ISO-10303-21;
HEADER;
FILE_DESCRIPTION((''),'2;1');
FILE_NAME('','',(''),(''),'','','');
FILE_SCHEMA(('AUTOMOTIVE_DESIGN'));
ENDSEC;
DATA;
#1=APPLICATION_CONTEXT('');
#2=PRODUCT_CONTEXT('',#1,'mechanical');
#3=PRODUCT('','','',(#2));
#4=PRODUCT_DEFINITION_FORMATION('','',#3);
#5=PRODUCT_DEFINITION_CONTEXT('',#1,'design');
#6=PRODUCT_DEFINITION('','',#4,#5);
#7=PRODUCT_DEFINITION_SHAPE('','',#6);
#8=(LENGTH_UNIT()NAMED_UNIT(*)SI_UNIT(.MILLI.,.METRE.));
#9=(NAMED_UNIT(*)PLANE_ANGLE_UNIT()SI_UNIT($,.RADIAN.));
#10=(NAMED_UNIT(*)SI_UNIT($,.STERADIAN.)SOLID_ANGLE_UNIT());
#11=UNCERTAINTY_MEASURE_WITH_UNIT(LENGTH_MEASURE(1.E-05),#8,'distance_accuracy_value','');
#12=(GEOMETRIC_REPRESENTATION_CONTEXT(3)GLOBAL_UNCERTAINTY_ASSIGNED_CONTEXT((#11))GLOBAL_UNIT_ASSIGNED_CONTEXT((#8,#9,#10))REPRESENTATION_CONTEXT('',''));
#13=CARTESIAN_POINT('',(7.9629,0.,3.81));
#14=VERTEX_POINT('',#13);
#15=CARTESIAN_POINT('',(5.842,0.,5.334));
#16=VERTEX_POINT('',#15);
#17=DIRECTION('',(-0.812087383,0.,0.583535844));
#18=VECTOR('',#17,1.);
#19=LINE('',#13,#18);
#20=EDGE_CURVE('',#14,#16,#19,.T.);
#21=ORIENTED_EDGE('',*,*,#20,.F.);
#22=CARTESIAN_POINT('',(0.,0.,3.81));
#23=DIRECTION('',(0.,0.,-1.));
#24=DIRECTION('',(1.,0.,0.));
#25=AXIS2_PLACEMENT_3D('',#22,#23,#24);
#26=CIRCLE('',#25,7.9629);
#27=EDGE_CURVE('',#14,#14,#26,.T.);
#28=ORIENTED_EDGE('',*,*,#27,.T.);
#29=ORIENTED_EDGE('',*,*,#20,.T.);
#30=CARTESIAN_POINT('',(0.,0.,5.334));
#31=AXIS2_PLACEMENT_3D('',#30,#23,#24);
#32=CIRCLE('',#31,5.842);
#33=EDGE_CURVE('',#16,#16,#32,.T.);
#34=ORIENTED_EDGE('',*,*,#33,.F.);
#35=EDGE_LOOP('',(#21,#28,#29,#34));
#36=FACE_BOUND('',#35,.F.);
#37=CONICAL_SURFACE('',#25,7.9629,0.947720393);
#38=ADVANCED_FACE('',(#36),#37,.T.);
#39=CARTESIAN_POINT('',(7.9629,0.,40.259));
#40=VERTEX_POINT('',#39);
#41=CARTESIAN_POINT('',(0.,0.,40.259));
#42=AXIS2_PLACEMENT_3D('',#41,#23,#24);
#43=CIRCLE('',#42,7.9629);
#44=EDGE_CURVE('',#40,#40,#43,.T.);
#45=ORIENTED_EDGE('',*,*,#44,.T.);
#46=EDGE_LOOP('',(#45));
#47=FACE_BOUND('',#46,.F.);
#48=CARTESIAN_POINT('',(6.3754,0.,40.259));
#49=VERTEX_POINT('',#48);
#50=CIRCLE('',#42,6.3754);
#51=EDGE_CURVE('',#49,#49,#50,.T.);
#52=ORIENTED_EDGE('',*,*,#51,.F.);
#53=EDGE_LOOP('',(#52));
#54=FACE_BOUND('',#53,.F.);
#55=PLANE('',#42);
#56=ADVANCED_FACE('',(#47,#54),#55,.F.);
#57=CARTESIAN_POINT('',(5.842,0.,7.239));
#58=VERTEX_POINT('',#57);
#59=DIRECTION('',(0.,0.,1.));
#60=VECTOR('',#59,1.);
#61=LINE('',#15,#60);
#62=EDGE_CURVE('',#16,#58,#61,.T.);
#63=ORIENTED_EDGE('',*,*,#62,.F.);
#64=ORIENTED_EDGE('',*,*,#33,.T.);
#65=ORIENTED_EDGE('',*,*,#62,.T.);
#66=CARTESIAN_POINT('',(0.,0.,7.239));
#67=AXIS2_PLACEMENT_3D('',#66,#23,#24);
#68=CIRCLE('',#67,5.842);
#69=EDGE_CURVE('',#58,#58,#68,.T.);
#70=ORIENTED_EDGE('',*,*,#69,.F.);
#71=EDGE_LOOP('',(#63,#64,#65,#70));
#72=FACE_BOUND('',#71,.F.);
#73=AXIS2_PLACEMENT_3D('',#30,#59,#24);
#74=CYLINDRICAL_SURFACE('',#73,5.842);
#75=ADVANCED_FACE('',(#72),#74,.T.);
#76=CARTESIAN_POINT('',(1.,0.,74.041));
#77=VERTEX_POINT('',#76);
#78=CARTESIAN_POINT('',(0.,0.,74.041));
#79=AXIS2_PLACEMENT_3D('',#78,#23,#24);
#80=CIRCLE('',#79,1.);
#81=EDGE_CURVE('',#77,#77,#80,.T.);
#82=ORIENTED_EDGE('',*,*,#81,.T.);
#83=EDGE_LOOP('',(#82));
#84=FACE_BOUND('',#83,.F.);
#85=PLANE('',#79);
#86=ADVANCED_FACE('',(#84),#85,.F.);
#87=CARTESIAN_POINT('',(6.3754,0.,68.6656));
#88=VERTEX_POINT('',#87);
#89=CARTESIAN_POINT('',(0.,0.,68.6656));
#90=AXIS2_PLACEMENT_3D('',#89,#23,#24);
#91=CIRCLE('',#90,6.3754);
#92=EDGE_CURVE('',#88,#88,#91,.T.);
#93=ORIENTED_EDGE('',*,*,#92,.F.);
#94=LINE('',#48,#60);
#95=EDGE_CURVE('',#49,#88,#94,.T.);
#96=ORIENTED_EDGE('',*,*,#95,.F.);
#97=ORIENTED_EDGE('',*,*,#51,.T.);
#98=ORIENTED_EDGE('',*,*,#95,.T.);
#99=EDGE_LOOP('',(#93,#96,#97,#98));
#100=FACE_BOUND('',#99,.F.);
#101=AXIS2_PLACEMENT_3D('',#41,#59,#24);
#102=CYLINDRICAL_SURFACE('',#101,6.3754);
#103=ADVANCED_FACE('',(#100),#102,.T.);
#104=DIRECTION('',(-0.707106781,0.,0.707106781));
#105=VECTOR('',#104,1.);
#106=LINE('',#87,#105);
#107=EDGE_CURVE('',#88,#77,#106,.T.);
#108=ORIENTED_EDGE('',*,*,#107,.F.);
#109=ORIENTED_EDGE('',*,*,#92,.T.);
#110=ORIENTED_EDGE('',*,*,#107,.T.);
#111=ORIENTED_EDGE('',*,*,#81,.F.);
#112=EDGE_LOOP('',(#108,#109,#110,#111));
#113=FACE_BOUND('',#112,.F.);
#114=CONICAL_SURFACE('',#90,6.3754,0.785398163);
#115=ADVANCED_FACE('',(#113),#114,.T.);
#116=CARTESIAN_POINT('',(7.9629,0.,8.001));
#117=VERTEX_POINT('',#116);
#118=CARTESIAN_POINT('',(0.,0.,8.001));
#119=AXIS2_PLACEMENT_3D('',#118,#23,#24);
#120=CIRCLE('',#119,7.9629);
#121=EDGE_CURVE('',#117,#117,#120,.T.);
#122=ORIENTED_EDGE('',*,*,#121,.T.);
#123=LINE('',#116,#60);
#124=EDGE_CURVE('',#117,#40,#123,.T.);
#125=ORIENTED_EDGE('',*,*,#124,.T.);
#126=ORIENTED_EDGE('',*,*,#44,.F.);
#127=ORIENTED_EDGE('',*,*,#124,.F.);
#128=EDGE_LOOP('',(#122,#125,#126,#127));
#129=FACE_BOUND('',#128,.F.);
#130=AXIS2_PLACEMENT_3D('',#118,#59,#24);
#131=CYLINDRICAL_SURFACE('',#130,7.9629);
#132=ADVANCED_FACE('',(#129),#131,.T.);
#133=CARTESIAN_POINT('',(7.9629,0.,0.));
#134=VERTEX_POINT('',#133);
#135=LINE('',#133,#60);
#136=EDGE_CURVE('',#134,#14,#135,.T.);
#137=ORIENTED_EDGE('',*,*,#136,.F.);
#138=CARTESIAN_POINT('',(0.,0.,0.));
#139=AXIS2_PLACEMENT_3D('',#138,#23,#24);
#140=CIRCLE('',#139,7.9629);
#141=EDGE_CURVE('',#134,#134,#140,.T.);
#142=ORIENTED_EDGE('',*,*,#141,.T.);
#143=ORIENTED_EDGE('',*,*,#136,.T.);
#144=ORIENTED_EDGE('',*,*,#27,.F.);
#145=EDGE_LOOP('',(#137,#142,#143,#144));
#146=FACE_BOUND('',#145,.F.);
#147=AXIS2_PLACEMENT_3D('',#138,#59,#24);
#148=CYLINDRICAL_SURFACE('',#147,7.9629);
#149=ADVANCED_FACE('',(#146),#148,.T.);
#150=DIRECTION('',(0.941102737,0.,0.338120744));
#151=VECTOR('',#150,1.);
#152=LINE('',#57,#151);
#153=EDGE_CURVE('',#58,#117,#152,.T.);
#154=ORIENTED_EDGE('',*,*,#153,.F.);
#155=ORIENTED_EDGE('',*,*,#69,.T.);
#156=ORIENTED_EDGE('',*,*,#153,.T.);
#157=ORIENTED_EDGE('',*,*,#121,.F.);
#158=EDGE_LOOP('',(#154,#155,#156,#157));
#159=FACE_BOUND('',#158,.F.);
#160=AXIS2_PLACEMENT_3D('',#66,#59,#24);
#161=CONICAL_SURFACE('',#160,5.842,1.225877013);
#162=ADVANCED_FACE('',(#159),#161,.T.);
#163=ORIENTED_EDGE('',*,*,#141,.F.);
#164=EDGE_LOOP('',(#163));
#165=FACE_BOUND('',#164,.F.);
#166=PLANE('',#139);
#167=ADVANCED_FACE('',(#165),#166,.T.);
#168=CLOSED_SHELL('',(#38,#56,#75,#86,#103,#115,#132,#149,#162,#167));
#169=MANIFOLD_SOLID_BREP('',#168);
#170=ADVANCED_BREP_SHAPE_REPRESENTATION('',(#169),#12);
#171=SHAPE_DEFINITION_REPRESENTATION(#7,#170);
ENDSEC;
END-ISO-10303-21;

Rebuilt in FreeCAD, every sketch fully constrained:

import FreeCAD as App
import Part
import Sketcher
Q = App.Units.Quantity

doc = App.newDocument("Part")
params = doc.addObject("Spreadsheet::Sheet", "Params")
for row, (alias, value) in enumerate([
    ("sketch1_height", "1.27 in"),
    ("sketch1_height2", "0.15 in"),
    ("sketch1_height3", "2.915 in"),
    ("revolution_angle", "360 deg"),
], start=1):
    params.set(f"A{row}", alias)
    params.set(f"B{row}", "=" + value)
    params.setAlias(f"B{row}", alias)

body = doc.addObject("PartDesign::Body", "Body")

sketch1 = body.newObject("Sketcher::SketchObject", "Sketch")
sketch1.AttachmentSupport = (doc.getObject("XZ_Plane"), [""])
sketch1.MapMode = "FlatFace"
sketch1.addGeometry([
    Part.LineSegment(App.Vector(8, 0, 0), App.Vector(0, 0, 0)),
    Part.LineSegment(App.Vector(0, 0, 0), App.Vector(0, 74, 0)),
    Part.LineSegment(App.Vector(0, 74, 0), App.Vector(1, 74, 0)),
    Part.LineSegment(App.Vector(1, 74, 0), App.Vector(6.4, 68.7, 0)),
    Part.LineSegment(App.Vector(6.4, 68.7, 0), App.Vector(6.4, 40.3, 0)),
    Part.LineSegment(App.Vector(6.4, 40.3, 0), App.Vector(8, 40.3, 0)),
    Part.LineSegment(App.Vector(8, 40.3, 0), App.Vector(8, 8, 0)),
    Part.LineSegment(App.Vector(8, 8, 0), App.Vector(5.8, 7.2, 0)),
    Part.LineSegment(App.Vector(5.8, 7.2, 0), App.Vector(5.8, 5.3, 0)),
    Part.LineSegment(App.Vector(5.8, 5.3, 0), App.Vector(8, 3.8, 0)),
    Part.LineSegment(App.Vector(8, 3.8, 0), App.Vector(8, 0, 0)),
], False)
sketch1.addConstraint([
    Sketcher.Constraint("Coincident", 0, 2, 1, 1),
    Sketcher.Constraint("Coincident", 1, 2, 2, 1),
    Sketcher.Constraint("Coincident", 2, 2, 3, 1),
    Sketcher.Constraint("Coincident", 3, 2, 4, 1),
    Sketcher.Constraint("Coincident", 4, 2, 5, 1),
    Sketcher.Constraint("Coincident", 5, 2, 6, 1),
    Sketcher.Constraint("Coincident", 6, 2, 7, 1),
    Sketcher.Constraint("Coincident", 7, 2, 8, 1),
    Sketcher.Constraint("Coincident", 8, 2, 9, 1),
    Sketcher.Constraint("Coincident", 9, 2, 10, 1),
    Sketcher.Constraint("Coincident", 10, 2, 0, 1),
    Sketcher.Constraint("Horizontal", 0),
    Sketcher.Constraint("Vertical", 1),
    Sketcher.Constraint("Horizontal", 2),
    Sketcher.Constraint("Vertical", 4),
    Sketcher.Constraint("Horizontal", 5),
    Sketcher.Constraint("Vertical", 6),
    Sketcher.Constraint("Vertical", 8),
    Sketcher.Constraint("Vertical", 10),
    Sketcher.Constraint("Coincident", 0, 2, -1, 1),
    Sketcher.Constraint("Vertical", 6, 2, 9, 2),
    Sketcher.Constraint("Angle", 3, Q("-45 deg")),
    Sketcher.Constraint("DistanceY", 6, 2, 6, 1, Q("1.27 in")),
    Sketcher.Constraint("DistanceY", 10, 2, 10, 1, Q("0.15 in")),
    Sketcher.Constraint("DistanceY", 1, 1, 1, 2, Q("2.915 in")),
    Sketcher.Constraint("DistanceX", -1, 1, 7, 2, Q("0.23 in")),
    Sketcher.Constraint("DistanceY", 7, 2, 6, 2, Q("0.03 in")),
    Sketcher.Constraint("DistanceY", 9, 2, 8, 2, Q("0.06 in")),
    Sketcher.Constraint("DistanceX", 0, 2, 0, 1, Q("0.3135 in")),
    Sketcher.Constraint("DistanceX", -1, 1, 3, 2, Q("0.251 in")),
    Sketcher.Constraint("DistanceY", 9, 2, 6, 2, Q("0.165 in")),
    Sketcher.Constraint("DistanceX", 2, 1, 2, 2, Q("1 mm")),
])
sketch1.setExpression("Constraints[22]", "Params.sketch1_height")
sketch1.setExpression("Constraints[23]", "Params.sketch1_height2")
sketch1.setExpression("Constraints[24]", "Params.sketch1_height3")
revolution = body.newObject("PartDesign::Revolution", "Revolution")
revolution.Profile = sketch1
revolution.ReferenceAxis = (sketch1, ["V_Axis"])
revolution.setExpression("Angle", "Params.revolution_angle")

doc.recompute()
